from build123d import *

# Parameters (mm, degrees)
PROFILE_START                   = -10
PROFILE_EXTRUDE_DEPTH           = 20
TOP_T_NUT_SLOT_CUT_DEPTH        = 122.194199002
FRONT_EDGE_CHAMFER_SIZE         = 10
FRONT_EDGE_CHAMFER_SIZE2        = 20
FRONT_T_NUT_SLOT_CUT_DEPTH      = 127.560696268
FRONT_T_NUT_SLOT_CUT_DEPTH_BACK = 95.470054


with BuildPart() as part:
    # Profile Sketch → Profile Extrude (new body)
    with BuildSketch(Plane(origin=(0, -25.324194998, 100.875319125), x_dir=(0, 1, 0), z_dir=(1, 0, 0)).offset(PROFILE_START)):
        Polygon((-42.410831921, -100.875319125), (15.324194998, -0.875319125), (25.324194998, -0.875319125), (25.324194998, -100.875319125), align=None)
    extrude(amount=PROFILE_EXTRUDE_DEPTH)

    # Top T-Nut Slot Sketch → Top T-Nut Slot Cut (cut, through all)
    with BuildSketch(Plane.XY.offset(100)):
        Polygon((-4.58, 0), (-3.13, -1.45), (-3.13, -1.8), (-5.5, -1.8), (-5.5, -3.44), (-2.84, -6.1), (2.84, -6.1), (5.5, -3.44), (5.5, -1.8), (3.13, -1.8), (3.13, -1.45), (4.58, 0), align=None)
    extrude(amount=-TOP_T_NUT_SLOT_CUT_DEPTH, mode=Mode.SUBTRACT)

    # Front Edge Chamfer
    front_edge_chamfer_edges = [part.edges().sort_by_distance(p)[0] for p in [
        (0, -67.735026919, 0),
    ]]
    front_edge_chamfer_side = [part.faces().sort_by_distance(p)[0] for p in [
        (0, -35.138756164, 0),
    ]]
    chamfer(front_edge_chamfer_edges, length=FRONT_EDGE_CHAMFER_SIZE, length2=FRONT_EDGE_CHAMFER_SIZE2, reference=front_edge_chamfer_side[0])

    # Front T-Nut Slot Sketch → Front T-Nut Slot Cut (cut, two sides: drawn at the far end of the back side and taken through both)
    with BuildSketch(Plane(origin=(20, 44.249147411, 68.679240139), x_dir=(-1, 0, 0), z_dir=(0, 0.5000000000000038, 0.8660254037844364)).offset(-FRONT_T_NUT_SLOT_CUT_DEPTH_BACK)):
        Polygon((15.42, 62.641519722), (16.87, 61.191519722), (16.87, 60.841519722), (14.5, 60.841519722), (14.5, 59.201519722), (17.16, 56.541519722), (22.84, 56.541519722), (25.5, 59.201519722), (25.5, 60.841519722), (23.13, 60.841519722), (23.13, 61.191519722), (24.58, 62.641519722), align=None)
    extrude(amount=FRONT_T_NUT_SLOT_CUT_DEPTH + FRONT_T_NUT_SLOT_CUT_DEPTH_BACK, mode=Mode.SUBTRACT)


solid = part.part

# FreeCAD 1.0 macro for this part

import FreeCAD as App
import Part
import Sketcher
from FreeCAD import Vector
Q = App.Units.Quantity


def edges_at(feature, points):
    """Names of the edges that pass closest to the given points."""
    edges = feature.Shape.Edges
    near = lambda p: min(range(len(edges)), key=lambda i: edges[i].distToShape(Part.Vertex(*p))[0])
    return sorted({f"Edge{near(p) + 1}" for p in points})


def add_polygon(sketch, points):
    """Adds a closed chain of lines whose ends are joined by coincident constraints."""
    first, n = sketch.GeometryCount, len(points)
    for a, b in zip(points, points[1:] + points[:1]):
        sketch.addGeometry(Part.LineSegment(App.Vector(*a, 0), App.Vector(*b, 0)), False)
    for i in range(n):
        sketch.addConstraint(Sketcher.Constraint("Coincident", first + i, 2, first + (i + 1) % n, 1))

doc = App.newDocument("Part")
body = doc.addObject("PartDesign::Body", "Body")

sketch1 = body.newObject("Sketcher::SketchObject", "Sketch")
sketch1.AttachmentSupport = (doc.getObject("YZ_Plane"), [""])
sketch1.MapMode = "FlatFace"
sketch1.AttachmentOffset = App.Placement(Vector(0, 0, -10), App.Rotation())
add_polygon(sketch1, [(-10, 100), (-68, 0), (0, 0), (0, 100)])
sketch1.addConstraint([
    Sketcher.Constraint("Horizontal", 1),
    Sketcher.Constraint("Vertical", 2),
    Sketcher.Constraint("Horizontal", 3),
    Sketcher.Constraint("Coincident", 1, 2, -1, 1),
    Sketcher.Constraint("DistanceX", 3, 2, 3, 1, Q("10 mm")),
    Sketcher.Constraint("DistanceY", 2, 1, 2, 2, Q("100 mm")),
    Sketcher.Constraint("Angle", 0, Q("-120 deg")),
])
pad1 = body.newObject("PartDesign::Pad", "Pad")
pad1.Profile = sketch1
pad1.Length = 20

sketch2 = body.newObject("Sketcher::SketchObject", "Sketch001")
sketch2.AttachmentSupport = (doc.getObject("XY_Plane"), [""])
sketch2.MapMode = "FlatFace"
sketch2.AttachmentOffset = App.Placement(Vector(0, 0, 100), App.Rotation())
add_polygon(sketch2, [(-4.58, 0), (-3.13, -1.45), (-3.13, -1.8), (-5.5, -1.8), (-5.5, -3.44), (-2.84, -6.1), (2.84, -6.1), (5.5, -3.44), (5.5, -1.8), (3.13, -1.8), (3.13, -1.45), (4.58, 0)])
sketch2.addConstraint([
    Sketcher.Constraint("Vertical", 1),
    Sketcher.Constraint("Horizontal", 2),
    Sketcher.Constraint("Vertical", 3),
    Sketcher.Constraint("Horizontal", 5),
    Sketcher.Constraint("Vertical", 7),
    Sketcher.Constraint("Horizontal", 8),
    Sketcher.Constraint("Vertical", 9),
    Sketcher.Constraint("Horizontal", 11),
    Sketcher.Constraint("Symmetric", 10, 2, 11, 2, -1, 1),
    Sketcher.Constraint("Symmetric", 3, 2, 6, 2, -2),
    Sketcher.Constraint("Symmetric", 1, 2, 8, 2, -2),
    Sketcher.Constraint("Parallel", 0, 4),
    Sketcher.Constraint("Perpendicular", 4, 6),
    Sketcher.Constraint("Parallel", 6, 10),
    Sketcher.Constraint("Horizontal", 0, 2, 9, 2),
    Sketcher.Constraint("DistanceX", 3, 2, 6, 2, Q("11 mm")),
    Sketcher.Constraint("DistanceX", 2, 2, 2, 1, Q("2.37 mm")),
    Sketcher.Constraint("DistanceX", 5, 1, 5, 2, Q("5.68 mm")),
    Sketcher.Constraint("DistanceX", 11, 2, 11, 1, Q("9.16 mm")),
    Sketcher.Constraint("DistanceY", 1, 2, 1, 1, Q("0.35 mm")),
    Sketcher.Constraint("DistanceY", 3, 2, 3, 1, Q("1.64 mm")),
])
pocket1 = body.newObject("PartDesign::Pocket", "Pocket")
pocket1.Profile = sketch2
pocket1.Type = "ThroughAll"
doc.recompute()

chamfer = body.newObject("PartDesign::Chamfer", "Chamfer")
chamfer.Base = (pocket1, edges_at(pocket1, [(0, -67.735, 0)]))
chamfer.ChamferType = "Two distances"
chamfer.Size = 10
chamfer.Size2 = 20
chamfer.FlipDirection = True

sketch3 = body.newObject("Sketcher::SketchObject", "Sketch002")
sketch3.Placement = App.Placement(Vector(20, 44.249147, 68.67924), App.Rotation(Vector(-1, 0, 0), Vector(0, -0.866025404, 0.5), Vector(0, 0.5, 0.866025404), "ZXY"))
add_polygon(sketch3, [(15.42, 62.64), (16.87, 61.19), (16.87, 60.84), (14.5, 60.84), (14.5, 59.2), (17.16, 56.54), (22.84, 56.54), (25.5, 59.2), (25.5, 60.84), (23.13, 60.84), (23.13, 61.19), (24.58, 62.64)])
sketch3.addConstraint([
    Sketcher.Constraint("Vertical", 1),
    Sketcher.Constraint("Horizontal", 2),
    Sketcher.Constraint("Vertical", 3),
    Sketcher.Constraint("Horizontal", 5),
    Sketcher.Constraint("Vertical", 7),
    Sketcher.Constraint("Horizontal", 8),
    Sketcher.Constraint("Vertical", 9),
    Sketcher.Constraint("Horizontal", 11),
    Sketcher.Constraint("Parallel", 0, 4),
    Sketcher.Constraint("Perpendicular", 4, 6),
    Sketcher.Constraint("Parallel", 6, 10),
    Sketcher.Constraint("Horizontal", 3, 2, 6, 2),
    Sketcher.Constraint("Horizontal", 2, 2, 7, 2),
    Sketcher.Constraint("Horizontal", 0, 2, 9, 2),
    Sketcher.Constraint("Equal", 2, 8),
    Sketcher.Constraint("Equal", 4, 6),
    Sketcher.Constraint("DistanceX", 3, 2, 6, 2, Q("11 mm")),
    Sketcher.Constraint("DistanceX", 2, 2, 2, 1, Q("2.37 mm")),
    Sketcher.Constraint("DistanceX", 5, 1, 5, 2, Q("5.68 mm")),
    Sketcher.Constraint("DistanceX", 11, 2, 11, 1, Q("9.16 mm")),
    Sketcher.Constraint("DistanceY", 1, 2, 1, 1, Q("0.35 mm")),
    Sketcher.Constraint("DistanceY", 3, 2, 3, 1, Q("1.64 mm")),
    Sketcher.Constraint("DistanceX", -1, 1, 2, 2, Q("14.5 mm")),
    Sketcher.Constraint("DistanceY", -1, 1, 0, 2, Q("61.19152 mm")),
])
pocket2 = body.newObject("PartDesign::Pocket", "Pocket001")
pocket2.Profile = sketch3
pocket2.Type = "TwoLengths"
pocket2.Length = 127.560696
pocket2.Length2 = 95.470054
pocket2.Reversed = True

doc.recompute()
